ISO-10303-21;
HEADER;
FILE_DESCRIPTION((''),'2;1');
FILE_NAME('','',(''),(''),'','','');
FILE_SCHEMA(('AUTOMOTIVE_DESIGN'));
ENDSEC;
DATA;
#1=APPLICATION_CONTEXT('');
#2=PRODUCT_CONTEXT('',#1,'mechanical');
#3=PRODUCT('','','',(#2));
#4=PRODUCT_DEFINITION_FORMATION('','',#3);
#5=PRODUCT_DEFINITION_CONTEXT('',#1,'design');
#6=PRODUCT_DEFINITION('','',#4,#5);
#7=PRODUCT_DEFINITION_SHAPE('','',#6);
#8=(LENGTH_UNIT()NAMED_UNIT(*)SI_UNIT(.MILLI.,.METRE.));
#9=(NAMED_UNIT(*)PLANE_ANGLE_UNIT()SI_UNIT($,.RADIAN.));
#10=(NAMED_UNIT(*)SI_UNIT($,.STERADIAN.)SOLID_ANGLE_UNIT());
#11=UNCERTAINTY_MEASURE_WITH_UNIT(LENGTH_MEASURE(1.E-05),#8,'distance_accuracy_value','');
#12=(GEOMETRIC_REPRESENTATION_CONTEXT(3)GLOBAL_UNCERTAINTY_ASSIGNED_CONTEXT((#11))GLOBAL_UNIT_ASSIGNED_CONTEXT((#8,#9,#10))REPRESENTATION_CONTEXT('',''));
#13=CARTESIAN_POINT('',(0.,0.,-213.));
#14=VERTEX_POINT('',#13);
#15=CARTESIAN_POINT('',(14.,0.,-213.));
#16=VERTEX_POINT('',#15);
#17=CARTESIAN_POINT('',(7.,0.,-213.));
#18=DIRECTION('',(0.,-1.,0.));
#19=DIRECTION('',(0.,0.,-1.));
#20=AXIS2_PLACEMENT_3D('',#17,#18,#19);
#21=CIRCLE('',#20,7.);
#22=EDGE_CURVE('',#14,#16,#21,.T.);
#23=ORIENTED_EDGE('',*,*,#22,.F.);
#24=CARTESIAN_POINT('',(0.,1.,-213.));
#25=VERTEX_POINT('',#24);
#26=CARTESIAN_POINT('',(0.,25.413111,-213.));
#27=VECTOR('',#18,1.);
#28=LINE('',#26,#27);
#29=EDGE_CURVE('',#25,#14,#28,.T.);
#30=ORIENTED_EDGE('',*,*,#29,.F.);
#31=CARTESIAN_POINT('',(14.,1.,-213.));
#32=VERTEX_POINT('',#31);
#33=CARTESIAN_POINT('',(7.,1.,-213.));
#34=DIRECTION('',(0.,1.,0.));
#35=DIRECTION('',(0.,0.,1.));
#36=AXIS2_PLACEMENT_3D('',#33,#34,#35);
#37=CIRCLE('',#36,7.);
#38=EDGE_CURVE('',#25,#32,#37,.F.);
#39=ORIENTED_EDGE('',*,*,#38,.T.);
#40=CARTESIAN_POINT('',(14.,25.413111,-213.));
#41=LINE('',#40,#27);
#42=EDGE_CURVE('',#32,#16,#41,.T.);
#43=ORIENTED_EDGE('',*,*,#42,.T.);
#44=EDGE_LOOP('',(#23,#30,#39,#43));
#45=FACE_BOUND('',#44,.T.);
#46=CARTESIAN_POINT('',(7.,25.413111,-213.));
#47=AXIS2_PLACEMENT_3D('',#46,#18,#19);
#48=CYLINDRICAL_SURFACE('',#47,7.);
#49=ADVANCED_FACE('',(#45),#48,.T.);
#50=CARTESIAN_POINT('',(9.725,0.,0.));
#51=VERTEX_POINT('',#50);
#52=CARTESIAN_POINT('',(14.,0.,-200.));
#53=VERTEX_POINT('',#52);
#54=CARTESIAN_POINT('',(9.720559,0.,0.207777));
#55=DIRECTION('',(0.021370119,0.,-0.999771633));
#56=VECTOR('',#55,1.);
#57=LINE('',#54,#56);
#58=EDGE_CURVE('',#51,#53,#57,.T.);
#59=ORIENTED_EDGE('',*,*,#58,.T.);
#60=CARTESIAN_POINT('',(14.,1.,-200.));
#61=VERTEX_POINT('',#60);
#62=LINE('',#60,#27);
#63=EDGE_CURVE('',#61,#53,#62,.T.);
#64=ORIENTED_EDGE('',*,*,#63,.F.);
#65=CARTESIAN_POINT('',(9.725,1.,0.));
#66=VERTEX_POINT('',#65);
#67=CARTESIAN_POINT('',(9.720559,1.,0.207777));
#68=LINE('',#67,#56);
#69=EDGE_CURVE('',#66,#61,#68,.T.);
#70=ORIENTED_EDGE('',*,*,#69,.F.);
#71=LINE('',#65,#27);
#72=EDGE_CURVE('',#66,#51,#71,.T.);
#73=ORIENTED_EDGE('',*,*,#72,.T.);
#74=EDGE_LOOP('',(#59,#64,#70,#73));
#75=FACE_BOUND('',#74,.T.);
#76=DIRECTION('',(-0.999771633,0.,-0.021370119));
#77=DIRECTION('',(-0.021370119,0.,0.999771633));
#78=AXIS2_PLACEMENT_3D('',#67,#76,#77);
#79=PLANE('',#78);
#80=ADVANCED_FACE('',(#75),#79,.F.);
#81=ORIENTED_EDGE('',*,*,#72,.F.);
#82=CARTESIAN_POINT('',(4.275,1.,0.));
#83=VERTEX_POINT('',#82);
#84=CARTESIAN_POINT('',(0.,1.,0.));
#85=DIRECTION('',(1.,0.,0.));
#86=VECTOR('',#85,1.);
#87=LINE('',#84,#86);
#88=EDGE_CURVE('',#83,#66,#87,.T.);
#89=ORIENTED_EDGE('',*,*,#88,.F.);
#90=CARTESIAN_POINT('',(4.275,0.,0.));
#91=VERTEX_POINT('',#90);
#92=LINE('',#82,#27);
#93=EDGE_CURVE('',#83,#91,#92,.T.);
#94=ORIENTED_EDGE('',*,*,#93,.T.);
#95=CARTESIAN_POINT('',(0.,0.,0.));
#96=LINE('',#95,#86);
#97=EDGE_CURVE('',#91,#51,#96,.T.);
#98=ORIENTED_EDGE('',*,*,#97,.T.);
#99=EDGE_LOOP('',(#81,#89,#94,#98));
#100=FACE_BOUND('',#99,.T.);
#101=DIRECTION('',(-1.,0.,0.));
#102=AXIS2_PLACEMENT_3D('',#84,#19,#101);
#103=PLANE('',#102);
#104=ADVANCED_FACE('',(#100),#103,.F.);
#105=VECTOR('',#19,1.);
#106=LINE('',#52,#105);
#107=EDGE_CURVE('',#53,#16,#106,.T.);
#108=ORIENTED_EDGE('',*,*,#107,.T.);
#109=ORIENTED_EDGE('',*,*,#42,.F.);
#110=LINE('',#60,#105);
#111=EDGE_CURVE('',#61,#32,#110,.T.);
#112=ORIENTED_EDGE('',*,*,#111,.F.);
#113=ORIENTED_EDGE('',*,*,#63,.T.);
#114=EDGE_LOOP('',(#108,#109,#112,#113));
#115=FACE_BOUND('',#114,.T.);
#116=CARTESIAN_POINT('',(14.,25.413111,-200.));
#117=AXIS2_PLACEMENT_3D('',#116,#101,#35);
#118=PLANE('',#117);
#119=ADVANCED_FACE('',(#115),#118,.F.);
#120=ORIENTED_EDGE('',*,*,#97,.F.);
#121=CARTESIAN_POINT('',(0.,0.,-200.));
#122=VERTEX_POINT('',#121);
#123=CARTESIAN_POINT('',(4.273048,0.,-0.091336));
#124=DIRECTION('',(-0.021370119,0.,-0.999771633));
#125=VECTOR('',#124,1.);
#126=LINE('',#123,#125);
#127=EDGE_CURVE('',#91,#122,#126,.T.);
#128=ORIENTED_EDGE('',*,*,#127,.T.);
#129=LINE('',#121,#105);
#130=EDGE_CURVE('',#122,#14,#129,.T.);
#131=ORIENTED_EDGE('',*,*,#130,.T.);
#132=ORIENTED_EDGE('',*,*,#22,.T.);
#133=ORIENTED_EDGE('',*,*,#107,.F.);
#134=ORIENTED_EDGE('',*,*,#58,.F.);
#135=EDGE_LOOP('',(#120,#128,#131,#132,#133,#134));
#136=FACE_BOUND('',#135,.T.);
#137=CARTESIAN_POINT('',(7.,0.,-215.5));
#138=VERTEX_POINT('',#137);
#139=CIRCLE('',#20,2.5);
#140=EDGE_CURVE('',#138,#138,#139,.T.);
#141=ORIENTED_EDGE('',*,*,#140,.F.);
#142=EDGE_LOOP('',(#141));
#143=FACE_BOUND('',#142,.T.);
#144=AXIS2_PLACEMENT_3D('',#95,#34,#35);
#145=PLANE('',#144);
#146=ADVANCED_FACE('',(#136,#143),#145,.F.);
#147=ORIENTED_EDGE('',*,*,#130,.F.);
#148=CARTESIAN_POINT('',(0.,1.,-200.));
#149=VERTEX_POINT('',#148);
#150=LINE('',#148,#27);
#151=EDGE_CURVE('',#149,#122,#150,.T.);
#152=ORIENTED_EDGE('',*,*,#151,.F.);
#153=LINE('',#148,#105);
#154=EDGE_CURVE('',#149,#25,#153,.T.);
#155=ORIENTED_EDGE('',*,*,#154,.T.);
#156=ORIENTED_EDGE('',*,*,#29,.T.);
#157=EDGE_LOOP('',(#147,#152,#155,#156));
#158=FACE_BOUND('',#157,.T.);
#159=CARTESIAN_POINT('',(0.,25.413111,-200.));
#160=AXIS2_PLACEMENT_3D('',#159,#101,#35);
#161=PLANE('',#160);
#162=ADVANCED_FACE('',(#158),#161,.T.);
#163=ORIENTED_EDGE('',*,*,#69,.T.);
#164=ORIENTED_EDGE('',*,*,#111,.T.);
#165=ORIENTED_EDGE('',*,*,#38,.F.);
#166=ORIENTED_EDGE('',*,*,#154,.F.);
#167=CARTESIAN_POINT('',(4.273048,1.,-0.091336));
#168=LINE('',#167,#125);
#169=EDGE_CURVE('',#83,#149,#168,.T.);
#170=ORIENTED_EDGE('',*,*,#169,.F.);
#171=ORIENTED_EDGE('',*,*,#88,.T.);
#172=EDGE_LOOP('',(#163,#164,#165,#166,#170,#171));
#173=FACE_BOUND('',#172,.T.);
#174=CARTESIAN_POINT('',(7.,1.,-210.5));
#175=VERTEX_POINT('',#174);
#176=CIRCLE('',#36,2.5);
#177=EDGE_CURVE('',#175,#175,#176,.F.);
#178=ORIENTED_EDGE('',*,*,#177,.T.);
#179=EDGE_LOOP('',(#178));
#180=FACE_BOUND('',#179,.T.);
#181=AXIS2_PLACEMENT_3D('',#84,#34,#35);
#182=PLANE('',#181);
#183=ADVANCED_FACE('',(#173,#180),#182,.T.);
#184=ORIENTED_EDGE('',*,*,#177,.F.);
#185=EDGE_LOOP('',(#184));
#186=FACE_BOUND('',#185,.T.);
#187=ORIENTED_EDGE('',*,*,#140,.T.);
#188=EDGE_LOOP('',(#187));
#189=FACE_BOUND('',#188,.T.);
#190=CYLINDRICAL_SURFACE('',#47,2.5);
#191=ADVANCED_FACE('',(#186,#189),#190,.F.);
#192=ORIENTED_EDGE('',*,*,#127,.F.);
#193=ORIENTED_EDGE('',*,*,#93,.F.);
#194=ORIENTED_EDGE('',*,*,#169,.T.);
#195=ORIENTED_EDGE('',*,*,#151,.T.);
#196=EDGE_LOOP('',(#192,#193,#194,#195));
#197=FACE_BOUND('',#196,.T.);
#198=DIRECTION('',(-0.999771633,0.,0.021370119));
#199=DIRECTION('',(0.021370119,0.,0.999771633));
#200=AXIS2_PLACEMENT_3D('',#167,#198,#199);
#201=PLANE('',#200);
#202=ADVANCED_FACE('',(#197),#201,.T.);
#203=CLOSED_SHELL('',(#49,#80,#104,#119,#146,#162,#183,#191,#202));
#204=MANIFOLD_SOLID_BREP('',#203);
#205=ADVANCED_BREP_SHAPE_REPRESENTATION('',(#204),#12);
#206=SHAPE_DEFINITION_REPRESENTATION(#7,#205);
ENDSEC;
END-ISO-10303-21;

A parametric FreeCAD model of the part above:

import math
import FreeCAD as App
import Part
import Sketcher
Q = App.Units.Quantity

doc = App.newDocument("Part")
body = doc.addObject("PartDesign::Body", "Body")

sketch1 = body.newObject("Sketcher::SketchObject", "Sketch")
sketch1.AttachmentSupport = (doc.getObject("XZ_Plane"), [""])
sketch1.MapMode = "FlatFace"
sketch1.addGeometry(Part.LineSegment(App.Vector(0, -200, 0), App.Vector(4, 0, 0)), False)
sketch1.addGeometry(Part.LineSegment(App.Vector(4, 0, 0), App.Vector(10, 0, 0)), False)
sketch1.addGeometry(Part.LineSegment(App.Vector(10, 0, 0), App.Vector(14, -200, 0)), False)
sketch1.addGeometry(Part.LineSegment(App.Vector(14, -200, 0), App.Vector(0, -200, 0)), False)
sketch1.addConstraint(Sketcher.Constraint("Coincident", 0, 2, 1, 1))
sketch1.addConstraint(Sketcher.Constraint("Coincident", 1, 2, 2, 1))
sketch1.addConstraint(Sketcher.Constraint("Coincident", 2, 2, 3, 1))
sketch1.addConstraint(Sketcher.Constraint("Coincident", 3, 2, 0, 1))
sketch1.addConstraint(Sketcher.Constraint("Horizontal", 1))
sketch1.addConstraint(Sketcher.Constraint("Horizontal", 3))
sketch1.addConstraint(Sketcher.Constraint("PointOnObject", 0, 2, -1))
sketch1.addConstraint(Sketcher.Constraint("PointOnObject", 3, 2, -2))
sketch1.addConstraint(Sketcher.Constraint("Equal", 0, 2))
sketch1.addConstraint(Sketcher.Constraint("DistanceX", 3, 2, 3, 1, Q("14 mm")))
sketch1.addConstraint(Sketcher.Constraint("DistanceY", 2, 2, -1, 1, Q("200 mm")))
sketch1.addConstraint(Sketcher.Constraint("DistanceX", 1, 1, 1, 2, Q("5.45 mm")))
pad1 = body.newObject("PartDesign::Pad", "Pad")
pad1.Profile = sketch1
pad1.Length = 1
pad1.Reversed = True

sketch2 = body.newObject("Sketcher::SketchObject", "Sketch001")
sketch2.AttachmentSupport = (doc.getObject("XZ_Plane"), [""])
sketch2.MapMode = "FlatFace"
sketch2.addGeometry(Part.LineSegment(App.Vector(14, -200, 0), App.Vector(0, -200, 0)), False)
sketch2.addGeometry(Part.LineSegment(App.Vector(0, -200, 0), App.Vector(0, -213, 0)), False)
sketch2.addGeometry(Part.ArcOfCircle(Part.Circle(App.Vector(7, -213, 0), App.Vector(0, 0, 1), 7), math.radians(180), math.radians(360)), False)
sketch2.addGeometry(Part.LineSegment(App.Vector(14, -213, 0), App.Vector(14, -200, 0)), False)
sketch2.addGeometry(Part.Circle(App.Vector(7, -213, 0), App.Vector(0, 0, 1), 2.5), False)
sketch2.addConstraint(Sketcher.Constraint("Coincident", 0, 2, 1, 1))
sketch2.addConstraint(Sketcher.Constraint("Tangent", 1, 2, 2, 1))
sketch2.addConstraint(Sketcher.Constraint("Tangent", 2, 2, 3, 1))
sketch2.addConstraint(Sketcher.Constraint("Coincident", 3, 2, 0, 1))
sketch2.addConstraint(Sketcher.Constraint("Horizontal", 0))
sketch2.addConstraint(Sketcher.Constraint("Vertical", 1))
sketch2.addConstraint(Sketcher.Constraint("Vertical", 3))
sketch2.addConstraint(Sketcher.Constraint("Coincident", 4, 3, 2, 3))
sketch2.addConstraint(Sketcher.Constraint("PointOnObject", 0, 2, -2))
sketch2.addConstraint(Sketcher.Constraint("Diameter", 4, Q("5 mm")))
sketch2.addConstraint(Sketcher.Constraint("Radius", 2, Q("7 mm")))
sketch2.addConstraint(Sketcher.Constraint("DistanceY", 1, 2, 1, 1, Q("13 mm")))
sketch2.addConstraint(Sketcher.Constraint("DistanceY", 2, 3, -1, 1, Q("213 mm")))
pad2 = body.newObject("PartDesign::Pad", "Pad001")
pad2.Profile = sketch2
pad2.Length = 1
pad2.Reversed = True

doc.recompute()
